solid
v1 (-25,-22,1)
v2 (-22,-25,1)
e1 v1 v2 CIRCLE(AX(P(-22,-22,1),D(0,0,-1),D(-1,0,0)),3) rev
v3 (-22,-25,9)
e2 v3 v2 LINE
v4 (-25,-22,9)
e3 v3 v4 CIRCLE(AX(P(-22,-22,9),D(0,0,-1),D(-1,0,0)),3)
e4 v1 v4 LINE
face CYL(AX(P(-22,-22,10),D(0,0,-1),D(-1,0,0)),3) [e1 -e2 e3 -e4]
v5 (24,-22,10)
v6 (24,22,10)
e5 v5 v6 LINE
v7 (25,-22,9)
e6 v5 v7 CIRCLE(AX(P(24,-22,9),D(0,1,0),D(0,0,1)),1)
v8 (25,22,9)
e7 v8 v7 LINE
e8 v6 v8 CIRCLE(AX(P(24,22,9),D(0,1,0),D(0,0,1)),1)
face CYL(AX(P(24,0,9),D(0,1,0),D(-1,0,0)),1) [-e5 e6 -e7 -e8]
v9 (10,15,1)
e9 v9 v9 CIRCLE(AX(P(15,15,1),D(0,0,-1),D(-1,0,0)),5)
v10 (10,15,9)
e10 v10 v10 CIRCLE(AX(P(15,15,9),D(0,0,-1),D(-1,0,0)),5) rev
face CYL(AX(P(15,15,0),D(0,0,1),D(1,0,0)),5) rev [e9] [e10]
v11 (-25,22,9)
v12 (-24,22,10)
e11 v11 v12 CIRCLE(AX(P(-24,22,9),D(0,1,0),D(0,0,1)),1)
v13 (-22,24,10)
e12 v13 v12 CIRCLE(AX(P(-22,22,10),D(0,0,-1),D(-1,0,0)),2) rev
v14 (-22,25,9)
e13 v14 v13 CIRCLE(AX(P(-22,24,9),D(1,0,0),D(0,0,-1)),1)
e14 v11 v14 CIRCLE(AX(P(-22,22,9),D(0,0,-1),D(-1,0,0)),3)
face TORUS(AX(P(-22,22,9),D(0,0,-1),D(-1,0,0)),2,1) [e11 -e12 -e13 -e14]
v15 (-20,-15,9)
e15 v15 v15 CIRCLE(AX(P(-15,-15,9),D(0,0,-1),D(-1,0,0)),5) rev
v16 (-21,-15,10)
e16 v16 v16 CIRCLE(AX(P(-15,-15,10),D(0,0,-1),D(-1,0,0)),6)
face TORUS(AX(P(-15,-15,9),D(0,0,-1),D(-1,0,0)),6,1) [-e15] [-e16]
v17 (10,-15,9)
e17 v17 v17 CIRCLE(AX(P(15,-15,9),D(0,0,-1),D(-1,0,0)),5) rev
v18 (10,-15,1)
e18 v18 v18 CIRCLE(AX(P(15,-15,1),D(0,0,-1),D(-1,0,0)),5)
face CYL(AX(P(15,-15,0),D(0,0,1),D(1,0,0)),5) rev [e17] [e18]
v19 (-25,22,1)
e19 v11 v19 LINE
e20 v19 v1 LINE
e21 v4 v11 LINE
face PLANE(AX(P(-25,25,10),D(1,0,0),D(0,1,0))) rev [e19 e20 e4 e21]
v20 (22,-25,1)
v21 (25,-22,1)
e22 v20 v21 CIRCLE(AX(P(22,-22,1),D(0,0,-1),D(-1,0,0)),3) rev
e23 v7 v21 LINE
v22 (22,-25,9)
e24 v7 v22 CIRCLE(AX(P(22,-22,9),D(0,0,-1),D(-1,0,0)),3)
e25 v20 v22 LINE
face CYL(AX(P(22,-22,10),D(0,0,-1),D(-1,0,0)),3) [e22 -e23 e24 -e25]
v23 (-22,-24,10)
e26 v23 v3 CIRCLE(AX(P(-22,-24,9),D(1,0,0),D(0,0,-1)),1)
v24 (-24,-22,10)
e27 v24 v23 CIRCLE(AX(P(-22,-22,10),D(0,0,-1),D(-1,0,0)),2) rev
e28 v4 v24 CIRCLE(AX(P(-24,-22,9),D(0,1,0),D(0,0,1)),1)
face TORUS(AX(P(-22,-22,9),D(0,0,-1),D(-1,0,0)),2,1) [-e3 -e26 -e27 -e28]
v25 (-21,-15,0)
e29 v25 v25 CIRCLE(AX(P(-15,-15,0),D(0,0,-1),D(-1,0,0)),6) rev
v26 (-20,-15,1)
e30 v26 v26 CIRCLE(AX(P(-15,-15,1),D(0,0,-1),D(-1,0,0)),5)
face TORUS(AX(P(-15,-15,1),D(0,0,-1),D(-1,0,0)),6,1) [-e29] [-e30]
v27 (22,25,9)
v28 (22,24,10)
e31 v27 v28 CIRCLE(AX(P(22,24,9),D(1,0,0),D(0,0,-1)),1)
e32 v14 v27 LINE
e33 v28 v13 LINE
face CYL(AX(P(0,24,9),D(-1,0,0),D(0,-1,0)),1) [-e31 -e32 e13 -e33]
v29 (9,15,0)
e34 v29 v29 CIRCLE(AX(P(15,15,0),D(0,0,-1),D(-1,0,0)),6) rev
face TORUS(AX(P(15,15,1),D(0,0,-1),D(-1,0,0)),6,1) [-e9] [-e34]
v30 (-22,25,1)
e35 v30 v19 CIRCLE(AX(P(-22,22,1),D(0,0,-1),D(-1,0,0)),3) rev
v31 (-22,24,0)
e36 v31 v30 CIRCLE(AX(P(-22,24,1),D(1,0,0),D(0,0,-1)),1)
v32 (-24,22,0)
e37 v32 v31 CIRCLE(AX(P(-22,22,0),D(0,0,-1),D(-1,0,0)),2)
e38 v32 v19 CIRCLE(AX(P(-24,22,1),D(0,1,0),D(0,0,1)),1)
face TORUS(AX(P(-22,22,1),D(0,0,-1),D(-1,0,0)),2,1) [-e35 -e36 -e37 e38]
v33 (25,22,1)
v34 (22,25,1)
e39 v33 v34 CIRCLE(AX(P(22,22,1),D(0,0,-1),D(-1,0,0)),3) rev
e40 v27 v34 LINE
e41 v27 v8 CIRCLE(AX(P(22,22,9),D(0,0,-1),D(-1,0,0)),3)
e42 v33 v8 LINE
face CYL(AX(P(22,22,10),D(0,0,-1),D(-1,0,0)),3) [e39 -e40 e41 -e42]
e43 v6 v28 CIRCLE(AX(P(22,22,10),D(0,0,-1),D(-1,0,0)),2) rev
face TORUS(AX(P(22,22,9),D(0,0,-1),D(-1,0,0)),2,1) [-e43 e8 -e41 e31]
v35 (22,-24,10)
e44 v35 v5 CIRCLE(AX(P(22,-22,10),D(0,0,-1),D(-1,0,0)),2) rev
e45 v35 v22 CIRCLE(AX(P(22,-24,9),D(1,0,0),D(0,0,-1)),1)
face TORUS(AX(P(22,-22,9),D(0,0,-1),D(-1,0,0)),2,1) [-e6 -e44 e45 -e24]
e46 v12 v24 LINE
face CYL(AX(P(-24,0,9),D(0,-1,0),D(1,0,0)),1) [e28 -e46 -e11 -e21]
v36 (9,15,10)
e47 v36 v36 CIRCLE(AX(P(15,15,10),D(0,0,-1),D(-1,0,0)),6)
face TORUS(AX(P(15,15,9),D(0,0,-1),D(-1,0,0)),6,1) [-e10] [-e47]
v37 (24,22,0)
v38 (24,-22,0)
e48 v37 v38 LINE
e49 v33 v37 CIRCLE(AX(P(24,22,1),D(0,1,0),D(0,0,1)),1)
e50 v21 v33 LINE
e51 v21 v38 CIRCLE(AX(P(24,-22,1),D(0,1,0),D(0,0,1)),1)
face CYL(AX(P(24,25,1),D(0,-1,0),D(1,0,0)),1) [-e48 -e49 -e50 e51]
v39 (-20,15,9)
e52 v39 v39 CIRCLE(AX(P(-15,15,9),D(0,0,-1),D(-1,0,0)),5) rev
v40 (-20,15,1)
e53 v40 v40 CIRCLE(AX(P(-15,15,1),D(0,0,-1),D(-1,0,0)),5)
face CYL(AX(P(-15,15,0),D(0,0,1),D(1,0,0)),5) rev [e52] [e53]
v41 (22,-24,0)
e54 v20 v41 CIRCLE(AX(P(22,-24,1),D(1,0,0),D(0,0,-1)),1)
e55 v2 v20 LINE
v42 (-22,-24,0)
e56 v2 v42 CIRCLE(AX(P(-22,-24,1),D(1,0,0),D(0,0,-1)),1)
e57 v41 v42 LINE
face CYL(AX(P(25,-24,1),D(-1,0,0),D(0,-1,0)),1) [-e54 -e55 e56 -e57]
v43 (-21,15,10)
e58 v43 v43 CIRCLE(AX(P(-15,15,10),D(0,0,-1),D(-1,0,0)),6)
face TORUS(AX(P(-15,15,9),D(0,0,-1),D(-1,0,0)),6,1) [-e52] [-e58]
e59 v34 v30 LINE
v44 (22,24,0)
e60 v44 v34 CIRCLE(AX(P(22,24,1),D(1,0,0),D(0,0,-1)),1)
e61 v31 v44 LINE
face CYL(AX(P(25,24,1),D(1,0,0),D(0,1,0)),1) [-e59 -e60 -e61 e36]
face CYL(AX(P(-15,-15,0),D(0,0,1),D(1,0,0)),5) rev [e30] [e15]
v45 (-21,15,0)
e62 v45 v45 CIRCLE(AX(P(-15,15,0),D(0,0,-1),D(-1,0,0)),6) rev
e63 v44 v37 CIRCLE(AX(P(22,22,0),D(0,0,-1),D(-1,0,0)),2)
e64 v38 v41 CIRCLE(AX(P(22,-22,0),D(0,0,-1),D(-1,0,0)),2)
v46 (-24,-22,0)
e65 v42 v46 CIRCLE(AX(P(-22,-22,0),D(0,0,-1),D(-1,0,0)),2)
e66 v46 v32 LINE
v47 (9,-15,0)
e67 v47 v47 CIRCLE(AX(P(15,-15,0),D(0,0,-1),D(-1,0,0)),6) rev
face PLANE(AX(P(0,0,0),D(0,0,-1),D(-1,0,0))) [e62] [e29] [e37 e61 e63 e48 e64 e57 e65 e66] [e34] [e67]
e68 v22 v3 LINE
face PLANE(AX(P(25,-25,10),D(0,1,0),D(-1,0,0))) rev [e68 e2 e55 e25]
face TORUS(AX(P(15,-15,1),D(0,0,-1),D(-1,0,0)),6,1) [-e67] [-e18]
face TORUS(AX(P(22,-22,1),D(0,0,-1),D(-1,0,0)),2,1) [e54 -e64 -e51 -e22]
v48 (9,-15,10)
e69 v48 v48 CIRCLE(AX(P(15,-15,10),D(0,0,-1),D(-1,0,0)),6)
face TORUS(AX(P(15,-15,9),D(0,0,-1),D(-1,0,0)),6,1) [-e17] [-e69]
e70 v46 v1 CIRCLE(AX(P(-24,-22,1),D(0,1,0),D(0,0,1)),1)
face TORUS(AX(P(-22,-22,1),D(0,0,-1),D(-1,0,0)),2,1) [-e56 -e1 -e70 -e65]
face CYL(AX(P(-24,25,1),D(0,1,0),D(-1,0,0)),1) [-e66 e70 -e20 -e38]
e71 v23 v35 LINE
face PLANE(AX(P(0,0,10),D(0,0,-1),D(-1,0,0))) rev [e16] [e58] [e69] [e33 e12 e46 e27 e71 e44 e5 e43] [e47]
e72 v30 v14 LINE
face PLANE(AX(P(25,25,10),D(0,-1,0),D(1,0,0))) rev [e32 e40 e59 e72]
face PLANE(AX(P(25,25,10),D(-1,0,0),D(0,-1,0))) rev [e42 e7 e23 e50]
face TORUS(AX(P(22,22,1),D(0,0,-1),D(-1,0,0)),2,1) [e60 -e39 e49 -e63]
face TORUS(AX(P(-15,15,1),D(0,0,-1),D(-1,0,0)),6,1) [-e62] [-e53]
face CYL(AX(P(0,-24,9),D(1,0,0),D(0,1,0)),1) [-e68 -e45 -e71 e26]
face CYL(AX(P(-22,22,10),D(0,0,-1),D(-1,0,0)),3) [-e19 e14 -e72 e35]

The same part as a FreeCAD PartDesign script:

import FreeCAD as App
import Part
import Sketcher
from FreeCAD import Vector
Q = App.Units.Quantity


def edges_at(feature, points):
    """Names of the edges that pass closest to the given points."""
    edges = feature.Shape.Edges
    near = lambda p: min(range(len(edges)), key=lambda i: edges[i].distToShape(Part.Vertex(*p))[0])
    return sorted({f"Edge{near(p) + 1}" for p in points})


def add_polygon(sketch, points):
    """Adds a closed chain of lines whose ends are joined by coincident constraints."""
    first, n = sketch.GeometryCount, len(points)
    for a, b in zip(points, points[1:] + points[:1]):
        sketch.addGeometry(Part.LineSegment(App.Vector(*a, 0), App.Vector(*b, 0)), False)
    for i in range(n):
        sketch.addConstraint(Sketcher.Constraint("Coincident", first + i, 2, first + (i + 1) % n, 1))

doc = App.newDocument("Part")
body = doc.addObject("PartDesign::Body", "Body")

sketch1 = doc.addObject("Sketcher::SketchObject", "Sketch")
body.addObject(sketch1)
sketch1.AttachmentSupport = (doc.XY_Plane, [""])
sketch1.MapMode = "FlatFace"
add_polygon(sketch1, [(-25, 25), (-25, -25), (25, -25), (25, 25)])
sketch1.addConstraint([
    Sketcher.Constraint("Vertical", 0),
    Sketcher.Constraint("Horizontal", 1),
    Sketcher.Constraint("Vertical", 2),
    Sketcher.Constraint("Horizontal", 3),
    Sketcher.Constraint("Symmetric", 0, 2, 2, 2, -1, 1),
    Sketcher.Constraint("Equal", 3, 0),
    Sketcher.Constraint("DistanceX", 1, 1, 1, 2, Q("50 mm")),
])
pad1 = doc.addObject("PartDesign::Pad", "Pad")
body.addObject(pad1)
pad1.Profile = sketch1
pad1.Length = 10

sketch2 = doc.addObject("Sketcher::SketchObject", "Sketch001")
body.addObject(sketch2)
sketch2.AttachmentSupport = (doc.XY_Plane, [""])
sketch2.MapMode = "FlatFace"
sketch2.AttachmentOffset = App.Placement(Vector(0, 0, 10), App.Rotation())
sketch2.addGeometry([
    Part.Circle(Vector(-15, 15, 0), Vector(0, 0, 1), 5),
    Part.Circle(Vector(15, 15, 0), Vector(0, 0, 1), 5),
    Part.Circle(Vector(15, -15, 0), Vector(0, 0, 1), 5),
    Part.Circle(Vector(-15, -15, 0), Vector(0, 0, 1), 5),
], False)
sketch2.addConstraint([
    Sketcher.Constraint("Equal", 0, 1),
    Sketcher.Constraint("Equal", 1, 2),
    Sketcher.Constraint("Equal", 2, 3),
    Sketcher.Constraint("Symmetric", 0, 3, 2, 3, -1, 1),
    Sketcher.Constraint("Symmetric", 1, 3, 3, 3, -1, 1),
    Sketcher.Constraint("Symmetric", 0, 3, 1, 3, -2),
    Sketcher.Constraint("Diameter", 0, Q("10 mm")),
    Sketcher.Constraint("DistanceX", 0, 3, -1, 1, Q("15 mm")),
    Sketcher.Constraint("DistanceY", -1, 1, 0, 3, Q("15 mm")),
])
pocket1 = doc.addObject("PartDesign::Pocket", "Pocket")
body.addObject(pocket1)
pocket1.Profile = sketch2
pocket1.Length = 10
doc.recompute()

fillet = doc.addObject("PartDesign::Fillet", "Fillet")
body.addObject(fillet)
fillet.Base = (pocket1, edges_at(pocket1, [
    (-25, 25, 5),
    (25, 25, 5),
    (25, -25, 5),
    (-25, -25, 5),
]))
fillet.Radius = 3
doc.recompute()

fillet2 = doc.addObject("PartDesign::Fillet", "Fillet001")
body.addObject(fillet2)
fillet2.Base = (fillet, edges_at(fillet, [
    (-20, 15, 0),
    (-20, 15, 10),
    (-20, -15, 0),
    (-20, -15, 10),
    (10, -15, 0),
    (10, -15, 10),
    (10, 15, 0),
    (10, 15, 10),
    (-25, 0, 0),
    (-25, 0, 10),
    (0, 25, 0),
    (25, 0, 0),
    (0, -25, 0),
    (24.121, 24.121, 0),
    (24.121, -24.121, 0),
    (-24.121, -24.121, 0),
    (-24.121, 24.121, 0),
    (0, 25, 10),
    (0, -25, 10),
    (25, 0, 10),
    (24.121, 24.121, 10),
    (24.121, -24.121, 10),
    (-24.121, -24.121, 10),
    (-24.121, 24.121, 10),
]))
fillet2.Radius = 1

doc.recompute()
